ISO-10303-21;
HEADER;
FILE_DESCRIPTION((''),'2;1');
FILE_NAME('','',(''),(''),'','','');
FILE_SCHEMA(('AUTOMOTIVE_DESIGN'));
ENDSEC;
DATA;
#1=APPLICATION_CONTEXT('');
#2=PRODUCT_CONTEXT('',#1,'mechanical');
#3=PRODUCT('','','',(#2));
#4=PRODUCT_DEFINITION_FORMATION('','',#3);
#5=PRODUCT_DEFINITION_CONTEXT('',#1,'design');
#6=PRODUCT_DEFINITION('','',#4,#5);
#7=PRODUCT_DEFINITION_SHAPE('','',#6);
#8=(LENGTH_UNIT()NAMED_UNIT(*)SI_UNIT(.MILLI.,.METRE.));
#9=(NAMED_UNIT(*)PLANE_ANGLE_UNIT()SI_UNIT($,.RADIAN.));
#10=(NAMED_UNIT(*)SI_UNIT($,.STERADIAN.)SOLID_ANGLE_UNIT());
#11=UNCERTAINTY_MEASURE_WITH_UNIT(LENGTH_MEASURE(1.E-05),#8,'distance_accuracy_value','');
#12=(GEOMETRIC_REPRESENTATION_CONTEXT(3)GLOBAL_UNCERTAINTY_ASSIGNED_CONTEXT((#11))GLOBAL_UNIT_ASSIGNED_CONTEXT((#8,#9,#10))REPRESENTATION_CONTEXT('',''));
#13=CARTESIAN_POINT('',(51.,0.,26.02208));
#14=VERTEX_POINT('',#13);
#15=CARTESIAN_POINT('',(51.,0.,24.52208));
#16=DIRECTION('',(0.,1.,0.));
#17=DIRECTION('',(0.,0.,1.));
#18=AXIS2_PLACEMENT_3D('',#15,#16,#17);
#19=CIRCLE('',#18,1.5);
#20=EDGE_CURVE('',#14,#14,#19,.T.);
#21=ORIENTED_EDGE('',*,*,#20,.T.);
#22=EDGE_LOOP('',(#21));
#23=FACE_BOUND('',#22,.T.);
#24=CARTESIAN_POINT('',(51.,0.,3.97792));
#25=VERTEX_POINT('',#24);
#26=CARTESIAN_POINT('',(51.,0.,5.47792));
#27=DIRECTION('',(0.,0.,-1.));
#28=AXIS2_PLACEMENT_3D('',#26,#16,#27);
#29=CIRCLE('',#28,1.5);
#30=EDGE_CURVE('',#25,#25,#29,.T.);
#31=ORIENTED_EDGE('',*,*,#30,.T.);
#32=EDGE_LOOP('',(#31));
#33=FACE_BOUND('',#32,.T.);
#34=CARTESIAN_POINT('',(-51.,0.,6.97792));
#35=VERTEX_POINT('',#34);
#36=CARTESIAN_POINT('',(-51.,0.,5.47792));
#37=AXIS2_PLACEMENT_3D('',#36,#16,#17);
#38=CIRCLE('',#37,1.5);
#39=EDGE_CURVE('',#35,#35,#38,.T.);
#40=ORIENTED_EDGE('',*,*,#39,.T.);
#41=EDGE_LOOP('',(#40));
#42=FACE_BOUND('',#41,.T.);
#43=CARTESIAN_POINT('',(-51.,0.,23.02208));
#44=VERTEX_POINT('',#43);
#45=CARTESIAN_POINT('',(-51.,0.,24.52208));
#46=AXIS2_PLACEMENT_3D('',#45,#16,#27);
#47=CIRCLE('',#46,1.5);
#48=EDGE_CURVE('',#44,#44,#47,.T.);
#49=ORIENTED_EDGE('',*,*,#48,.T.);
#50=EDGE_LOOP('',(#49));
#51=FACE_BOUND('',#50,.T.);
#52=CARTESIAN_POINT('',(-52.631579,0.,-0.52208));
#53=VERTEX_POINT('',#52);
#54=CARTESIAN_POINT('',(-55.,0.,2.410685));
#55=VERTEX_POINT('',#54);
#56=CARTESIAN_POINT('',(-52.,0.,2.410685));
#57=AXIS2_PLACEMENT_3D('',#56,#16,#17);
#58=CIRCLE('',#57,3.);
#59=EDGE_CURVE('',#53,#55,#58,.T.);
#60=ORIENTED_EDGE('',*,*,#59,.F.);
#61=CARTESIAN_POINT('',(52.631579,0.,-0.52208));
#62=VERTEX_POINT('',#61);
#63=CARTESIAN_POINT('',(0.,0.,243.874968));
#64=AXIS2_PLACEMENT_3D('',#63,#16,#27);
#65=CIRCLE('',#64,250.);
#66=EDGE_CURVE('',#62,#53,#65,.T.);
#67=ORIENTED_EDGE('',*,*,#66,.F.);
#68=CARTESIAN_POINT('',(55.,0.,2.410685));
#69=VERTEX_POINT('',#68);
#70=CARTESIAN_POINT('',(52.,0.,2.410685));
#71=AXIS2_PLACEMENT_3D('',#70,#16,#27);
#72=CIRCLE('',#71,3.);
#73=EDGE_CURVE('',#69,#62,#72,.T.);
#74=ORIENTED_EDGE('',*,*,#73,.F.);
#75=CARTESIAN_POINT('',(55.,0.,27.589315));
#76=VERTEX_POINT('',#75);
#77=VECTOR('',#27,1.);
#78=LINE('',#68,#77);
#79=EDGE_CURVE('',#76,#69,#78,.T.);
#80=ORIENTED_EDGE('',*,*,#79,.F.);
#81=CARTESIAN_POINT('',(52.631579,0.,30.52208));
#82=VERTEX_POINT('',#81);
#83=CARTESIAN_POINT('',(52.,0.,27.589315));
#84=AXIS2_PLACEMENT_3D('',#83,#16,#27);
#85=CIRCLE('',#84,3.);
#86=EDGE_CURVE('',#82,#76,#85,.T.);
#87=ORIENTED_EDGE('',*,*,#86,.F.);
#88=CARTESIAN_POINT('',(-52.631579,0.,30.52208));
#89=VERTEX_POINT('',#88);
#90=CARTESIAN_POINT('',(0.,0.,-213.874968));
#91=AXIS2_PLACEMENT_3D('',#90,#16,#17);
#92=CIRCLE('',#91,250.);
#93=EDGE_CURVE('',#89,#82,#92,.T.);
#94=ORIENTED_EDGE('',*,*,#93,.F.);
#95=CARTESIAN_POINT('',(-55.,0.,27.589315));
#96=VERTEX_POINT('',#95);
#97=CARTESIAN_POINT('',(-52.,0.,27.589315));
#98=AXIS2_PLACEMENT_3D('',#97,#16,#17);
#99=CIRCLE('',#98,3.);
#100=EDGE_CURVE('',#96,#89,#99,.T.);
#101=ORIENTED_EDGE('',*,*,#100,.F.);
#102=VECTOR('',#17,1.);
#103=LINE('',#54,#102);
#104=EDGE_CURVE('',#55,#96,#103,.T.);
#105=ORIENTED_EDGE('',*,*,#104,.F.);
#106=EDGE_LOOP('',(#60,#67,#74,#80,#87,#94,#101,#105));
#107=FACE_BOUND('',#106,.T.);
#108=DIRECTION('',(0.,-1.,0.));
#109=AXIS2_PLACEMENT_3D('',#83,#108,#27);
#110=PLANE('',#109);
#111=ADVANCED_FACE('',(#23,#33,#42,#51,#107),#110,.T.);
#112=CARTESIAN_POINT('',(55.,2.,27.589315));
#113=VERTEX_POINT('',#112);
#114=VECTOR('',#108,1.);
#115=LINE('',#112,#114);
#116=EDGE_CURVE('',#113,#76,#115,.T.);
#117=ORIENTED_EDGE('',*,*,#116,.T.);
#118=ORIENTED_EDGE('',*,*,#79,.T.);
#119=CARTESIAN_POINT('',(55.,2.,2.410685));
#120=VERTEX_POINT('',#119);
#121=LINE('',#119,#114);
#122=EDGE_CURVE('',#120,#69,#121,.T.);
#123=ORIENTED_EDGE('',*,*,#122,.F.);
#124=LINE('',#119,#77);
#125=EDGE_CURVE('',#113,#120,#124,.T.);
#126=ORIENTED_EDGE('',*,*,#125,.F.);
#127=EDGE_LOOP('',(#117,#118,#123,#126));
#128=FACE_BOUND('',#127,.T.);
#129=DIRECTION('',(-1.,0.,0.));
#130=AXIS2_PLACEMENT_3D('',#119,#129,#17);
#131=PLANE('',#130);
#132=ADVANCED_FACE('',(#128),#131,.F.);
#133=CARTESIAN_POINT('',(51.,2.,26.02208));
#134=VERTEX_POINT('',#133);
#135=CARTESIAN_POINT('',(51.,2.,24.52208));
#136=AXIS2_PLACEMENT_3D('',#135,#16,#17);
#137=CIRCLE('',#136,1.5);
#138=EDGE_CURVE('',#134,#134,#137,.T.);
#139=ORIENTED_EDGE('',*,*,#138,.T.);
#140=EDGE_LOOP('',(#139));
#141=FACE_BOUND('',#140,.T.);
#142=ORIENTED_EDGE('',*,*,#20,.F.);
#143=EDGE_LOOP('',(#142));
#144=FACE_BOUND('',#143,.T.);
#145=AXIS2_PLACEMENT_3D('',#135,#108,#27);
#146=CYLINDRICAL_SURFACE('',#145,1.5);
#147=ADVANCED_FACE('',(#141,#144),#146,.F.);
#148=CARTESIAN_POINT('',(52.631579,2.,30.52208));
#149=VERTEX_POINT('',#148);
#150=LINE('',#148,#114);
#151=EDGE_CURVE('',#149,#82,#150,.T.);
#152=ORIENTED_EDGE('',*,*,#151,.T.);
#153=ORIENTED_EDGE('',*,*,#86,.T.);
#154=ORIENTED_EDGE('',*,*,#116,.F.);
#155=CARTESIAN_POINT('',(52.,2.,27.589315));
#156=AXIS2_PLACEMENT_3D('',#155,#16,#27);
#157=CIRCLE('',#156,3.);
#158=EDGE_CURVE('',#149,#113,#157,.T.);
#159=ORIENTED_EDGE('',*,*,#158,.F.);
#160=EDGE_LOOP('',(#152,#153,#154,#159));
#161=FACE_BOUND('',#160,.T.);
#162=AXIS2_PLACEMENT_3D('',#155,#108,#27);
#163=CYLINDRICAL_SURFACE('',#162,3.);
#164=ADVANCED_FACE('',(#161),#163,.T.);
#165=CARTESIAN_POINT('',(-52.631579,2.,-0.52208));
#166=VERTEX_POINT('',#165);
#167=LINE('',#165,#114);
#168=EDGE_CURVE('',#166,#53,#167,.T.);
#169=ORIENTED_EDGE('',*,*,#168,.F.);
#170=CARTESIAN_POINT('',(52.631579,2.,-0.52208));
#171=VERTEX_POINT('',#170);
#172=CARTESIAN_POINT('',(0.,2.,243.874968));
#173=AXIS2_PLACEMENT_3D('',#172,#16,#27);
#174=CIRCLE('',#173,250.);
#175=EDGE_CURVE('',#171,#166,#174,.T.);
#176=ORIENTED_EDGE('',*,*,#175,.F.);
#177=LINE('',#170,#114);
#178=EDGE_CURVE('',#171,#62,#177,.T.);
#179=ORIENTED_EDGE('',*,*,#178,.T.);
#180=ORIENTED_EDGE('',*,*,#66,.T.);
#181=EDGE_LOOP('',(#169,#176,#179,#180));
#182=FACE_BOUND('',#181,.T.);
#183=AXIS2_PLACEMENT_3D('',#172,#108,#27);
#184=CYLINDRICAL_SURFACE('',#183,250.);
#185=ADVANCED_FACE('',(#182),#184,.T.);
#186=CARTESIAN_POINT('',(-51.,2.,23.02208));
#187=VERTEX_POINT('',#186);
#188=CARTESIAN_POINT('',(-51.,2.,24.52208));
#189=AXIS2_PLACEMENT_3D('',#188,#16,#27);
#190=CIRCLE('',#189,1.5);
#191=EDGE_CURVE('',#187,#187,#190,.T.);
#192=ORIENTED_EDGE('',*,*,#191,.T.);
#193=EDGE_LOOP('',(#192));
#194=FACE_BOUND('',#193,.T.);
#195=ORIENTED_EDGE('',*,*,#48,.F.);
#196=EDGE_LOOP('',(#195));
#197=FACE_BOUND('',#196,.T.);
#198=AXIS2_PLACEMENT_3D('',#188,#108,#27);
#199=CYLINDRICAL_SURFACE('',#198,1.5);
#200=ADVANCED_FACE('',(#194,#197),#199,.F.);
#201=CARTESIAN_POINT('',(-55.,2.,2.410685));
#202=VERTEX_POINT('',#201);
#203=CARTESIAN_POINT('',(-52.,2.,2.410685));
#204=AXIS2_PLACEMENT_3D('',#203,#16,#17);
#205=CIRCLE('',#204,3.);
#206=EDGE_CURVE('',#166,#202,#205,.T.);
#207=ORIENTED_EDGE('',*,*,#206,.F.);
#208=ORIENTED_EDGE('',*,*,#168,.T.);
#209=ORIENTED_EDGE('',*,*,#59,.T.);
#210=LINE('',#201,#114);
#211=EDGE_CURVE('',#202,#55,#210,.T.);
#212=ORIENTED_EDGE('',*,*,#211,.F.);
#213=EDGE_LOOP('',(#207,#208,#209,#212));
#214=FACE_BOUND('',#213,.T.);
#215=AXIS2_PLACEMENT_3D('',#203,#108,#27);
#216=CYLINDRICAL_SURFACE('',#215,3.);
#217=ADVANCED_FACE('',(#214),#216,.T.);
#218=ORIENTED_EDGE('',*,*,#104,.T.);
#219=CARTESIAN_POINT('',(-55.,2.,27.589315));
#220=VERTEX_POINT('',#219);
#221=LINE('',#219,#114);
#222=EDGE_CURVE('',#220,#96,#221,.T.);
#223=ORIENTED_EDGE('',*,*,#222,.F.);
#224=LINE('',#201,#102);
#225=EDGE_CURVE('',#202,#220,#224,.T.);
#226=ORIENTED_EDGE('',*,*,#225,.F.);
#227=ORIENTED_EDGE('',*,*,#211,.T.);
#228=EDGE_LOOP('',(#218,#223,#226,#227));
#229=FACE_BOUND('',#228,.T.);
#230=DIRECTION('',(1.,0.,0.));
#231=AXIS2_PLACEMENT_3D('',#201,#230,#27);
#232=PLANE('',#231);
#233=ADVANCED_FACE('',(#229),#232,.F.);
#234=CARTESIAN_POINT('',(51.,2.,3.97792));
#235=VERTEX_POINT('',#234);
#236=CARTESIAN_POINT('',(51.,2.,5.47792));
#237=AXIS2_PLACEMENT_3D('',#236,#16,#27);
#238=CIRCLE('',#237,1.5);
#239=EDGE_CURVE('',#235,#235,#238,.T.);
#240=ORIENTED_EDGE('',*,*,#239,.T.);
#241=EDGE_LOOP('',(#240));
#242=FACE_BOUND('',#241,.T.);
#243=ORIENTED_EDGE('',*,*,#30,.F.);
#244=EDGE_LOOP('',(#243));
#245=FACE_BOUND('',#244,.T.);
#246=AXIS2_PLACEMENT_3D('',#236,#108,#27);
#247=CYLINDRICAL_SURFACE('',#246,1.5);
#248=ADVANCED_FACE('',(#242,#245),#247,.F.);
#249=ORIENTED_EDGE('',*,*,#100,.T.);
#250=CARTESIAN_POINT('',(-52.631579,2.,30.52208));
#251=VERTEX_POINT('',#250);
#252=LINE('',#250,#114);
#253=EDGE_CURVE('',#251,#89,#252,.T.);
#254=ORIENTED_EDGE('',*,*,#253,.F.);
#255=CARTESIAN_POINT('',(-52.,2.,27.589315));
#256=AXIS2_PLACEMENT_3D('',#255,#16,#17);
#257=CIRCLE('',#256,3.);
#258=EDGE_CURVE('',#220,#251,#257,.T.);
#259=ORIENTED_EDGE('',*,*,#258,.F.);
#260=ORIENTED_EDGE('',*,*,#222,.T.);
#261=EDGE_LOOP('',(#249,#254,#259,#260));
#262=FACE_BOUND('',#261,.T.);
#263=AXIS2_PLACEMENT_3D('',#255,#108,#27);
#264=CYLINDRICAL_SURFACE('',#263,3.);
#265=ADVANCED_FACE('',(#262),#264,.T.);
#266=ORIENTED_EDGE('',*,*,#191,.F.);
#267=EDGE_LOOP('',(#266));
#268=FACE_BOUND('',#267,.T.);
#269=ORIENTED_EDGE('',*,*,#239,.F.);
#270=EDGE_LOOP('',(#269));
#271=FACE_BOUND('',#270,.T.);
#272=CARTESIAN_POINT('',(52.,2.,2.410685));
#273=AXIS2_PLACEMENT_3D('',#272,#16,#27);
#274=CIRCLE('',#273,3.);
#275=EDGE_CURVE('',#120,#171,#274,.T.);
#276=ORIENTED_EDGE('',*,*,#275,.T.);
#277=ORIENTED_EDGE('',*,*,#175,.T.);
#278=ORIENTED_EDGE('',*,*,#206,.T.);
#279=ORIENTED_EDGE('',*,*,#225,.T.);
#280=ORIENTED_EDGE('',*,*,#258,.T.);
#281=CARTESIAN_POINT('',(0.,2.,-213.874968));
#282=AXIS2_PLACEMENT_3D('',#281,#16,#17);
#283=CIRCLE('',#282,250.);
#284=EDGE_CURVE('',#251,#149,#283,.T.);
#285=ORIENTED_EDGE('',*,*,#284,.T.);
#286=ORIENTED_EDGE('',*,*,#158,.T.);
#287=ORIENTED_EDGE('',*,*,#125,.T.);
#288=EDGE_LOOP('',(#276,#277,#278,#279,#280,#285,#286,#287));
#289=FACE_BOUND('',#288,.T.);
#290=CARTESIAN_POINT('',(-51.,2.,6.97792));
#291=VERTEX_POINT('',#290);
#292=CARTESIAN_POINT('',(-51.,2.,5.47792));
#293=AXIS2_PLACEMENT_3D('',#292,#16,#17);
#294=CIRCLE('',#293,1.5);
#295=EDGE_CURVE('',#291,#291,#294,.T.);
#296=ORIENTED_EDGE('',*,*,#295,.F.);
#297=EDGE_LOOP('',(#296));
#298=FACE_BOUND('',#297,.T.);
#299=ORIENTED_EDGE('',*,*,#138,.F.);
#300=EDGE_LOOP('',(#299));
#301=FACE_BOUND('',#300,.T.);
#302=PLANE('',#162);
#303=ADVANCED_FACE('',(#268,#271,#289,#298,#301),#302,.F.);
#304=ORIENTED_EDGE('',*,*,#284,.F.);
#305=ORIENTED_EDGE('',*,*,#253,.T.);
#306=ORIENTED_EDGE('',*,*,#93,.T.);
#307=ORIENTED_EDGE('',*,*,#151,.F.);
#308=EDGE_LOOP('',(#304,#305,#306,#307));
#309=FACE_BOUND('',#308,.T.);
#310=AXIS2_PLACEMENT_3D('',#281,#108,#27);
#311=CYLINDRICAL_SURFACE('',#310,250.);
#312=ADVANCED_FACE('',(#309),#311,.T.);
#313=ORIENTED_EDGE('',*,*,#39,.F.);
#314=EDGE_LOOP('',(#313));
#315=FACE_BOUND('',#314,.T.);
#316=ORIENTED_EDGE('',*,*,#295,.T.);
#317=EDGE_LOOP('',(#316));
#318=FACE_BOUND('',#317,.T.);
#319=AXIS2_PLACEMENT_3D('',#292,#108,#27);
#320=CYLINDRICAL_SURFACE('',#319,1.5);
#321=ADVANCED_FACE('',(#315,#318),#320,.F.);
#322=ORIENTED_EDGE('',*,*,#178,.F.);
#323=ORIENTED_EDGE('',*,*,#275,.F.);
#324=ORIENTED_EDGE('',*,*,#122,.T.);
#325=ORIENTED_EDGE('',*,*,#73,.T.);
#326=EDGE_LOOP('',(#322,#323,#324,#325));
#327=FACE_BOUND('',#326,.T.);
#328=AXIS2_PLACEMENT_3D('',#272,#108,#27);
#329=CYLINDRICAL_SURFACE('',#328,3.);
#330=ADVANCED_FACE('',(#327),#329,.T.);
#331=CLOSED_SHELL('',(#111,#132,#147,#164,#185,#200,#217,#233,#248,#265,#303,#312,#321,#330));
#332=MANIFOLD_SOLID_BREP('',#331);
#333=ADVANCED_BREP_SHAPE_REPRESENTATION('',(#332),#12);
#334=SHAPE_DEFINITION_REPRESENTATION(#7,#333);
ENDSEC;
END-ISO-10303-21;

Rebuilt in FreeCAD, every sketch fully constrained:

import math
import FreeCAD as App
import Part
import Sketcher
Q = App.Units.Quantity

doc = App.newDocument("Part")
body = doc.addObject("PartDesign::Body", "Body")

sketch1 = body.newObject("Sketcher::SketchObject", "Sketch")
sketch1.AttachmentSupport = (doc.getObject("XZ_Plane"), [""])
sketch1.MapMode = "FlatFace"
sketch1.addGeometry([
    Part.LineSegment(App.Vector(-55, 2.410685, 0), App.Vector(-55, 27.589315, 0)),
    Part.ArcOfCircle(Part.Circle(App.Vector(-52, 27.589315, 0), App.Vector(0, 0, 1), 3), math.radians(102.153197), math.radians(180)),
    Part.ArcOfCircle(Part.Circle(App.Vector(0, -213.874968, 0), App.Vector(0, 0, 1), 250), math.radians(77.846803), math.radians(102.153197)),
    Part.ArcOfCircle(Part.Circle(App.Vector(52, 27.589315, 0), App.Vector(0, 0, 1), 3), math.radians(0), math.radians(77.846803)),
    Part.LineSegment(App.Vector(55, 27.589315, 0), App.Vector(55, 2.410685, 0)),
    Part.ArcOfCircle(Part.Circle(App.Vector(52, 2.410685, 0), App.Vector(0, 0, 1), 3), math.radians(-77.846803), math.radians(0)),
    Part.ArcOfCircle(Part.Circle(App.Vector(0, 243.874968, 0), App.Vector(0, 0, 1), 250), math.radians(-102.153197), math.radians(-77.846803)),
    Part.ArcOfCircle(Part.Circle(App.Vector(-52, 2.410685, 0), App.Vector(0, 0, 1), 3), math.radians(180), math.radians(257.846803)),
    Part.Circle(App.Vector(-51, 24.52208, 0), App.Vector(0, 0, 1), 1.5),
    Part.Circle(App.Vector(51, 24.52208, 0), App.Vector(0, 0, 1), 1.5),
    Part.Circle(App.Vector(-51, 5.47792, 0), App.Vector(0, 0, 1), 1.5),
    Part.Circle(App.Vector(51, 5.47792, 0), App.Vector(0, 0, 1), 1.5),
], False)
sketch1.addConstraint([
    Sketcher.Constraint("Tangent", 0, 2, 1, 2),
    Sketcher.Constraint("Tangent", 1, 1, 2, 2),
    Sketcher.Constraint("Tangent", 2, 1, 3, 2),
    Sketcher.Constraint("Tangent", 3, 1, 4, 1),
    Sketcher.Constraint("Tangent", 4, 2, 5, 2),
    Sketcher.Constraint("Tangent", 5, 1, 6, 2),
    Sketcher.Constraint("Tangent", 6, 1, 7, 2),
    Sketcher.Constraint("Tangent", 7, 1, 0, 1),
    Sketcher.Constraint("Vertical", 0),
    Sketcher.Constraint("Vertical", 4),
    Sketcher.Constraint("Equal", 1, 3),
    Sketcher.Constraint("Equal", 3, 5),
    Sketcher.Constraint("Equal", 2, 6),
    Sketcher.Constraint("Equal", 5, 7),
    Sketcher.Constraint("Equal", 8, 9),
    Sketcher.Constraint("Equal", 9, 10),
    Sketcher.Constraint("Equal", 10, 11),
    Sketcher.Constraint("Symmetric", 1, 3, 3, 3, -2),
    Sketcher.Constraint("Symmetric", 8, 3, 9, 3, -2),
    Sketcher.Constraint("Symmetric", 10, 3, 11, 3, -2),
    Sketcher.Constraint("PointOnObject", 6, 3, -2),
    Sketcher.Constraint("Vertical", 8, 3, 10, 3),
    Sketcher.Constraint("Diameter", 8, Q("3 mm")),
    Sketcher.Constraint("Radius", 1, Q("3 mm")),
    Sketcher.Constraint("Radius", 2, Q("250 mm")),
    Sketcher.Constraint("DistanceX", 1, 3, -1, 1, Q("52 mm")),
    Sketcher.Constraint("DistanceX", 8, 3, -1, 1, Q("51 mm")),
    Sketcher.Constraint("DistanceY", 8, 3, 1, 1, Q("6 mm")),
    Sketcher.Constraint("DistanceY", 5, 1, 11, 3, Q("6 mm")),
    Sketcher.Constraint("DistanceY", 0, 1, 0, 2, Q("25.17863 mm")),
    Sketcher.Constraint("DistanceY", -1, 1, 8, 3, Q("24.52208 mm")),
])
pad1 = body.newObject("PartDesign::Pad", "Pad")
pad1.Profile = sketch1
pad1.Length = 2
pad1.Reversed = True

doc.recompute()
